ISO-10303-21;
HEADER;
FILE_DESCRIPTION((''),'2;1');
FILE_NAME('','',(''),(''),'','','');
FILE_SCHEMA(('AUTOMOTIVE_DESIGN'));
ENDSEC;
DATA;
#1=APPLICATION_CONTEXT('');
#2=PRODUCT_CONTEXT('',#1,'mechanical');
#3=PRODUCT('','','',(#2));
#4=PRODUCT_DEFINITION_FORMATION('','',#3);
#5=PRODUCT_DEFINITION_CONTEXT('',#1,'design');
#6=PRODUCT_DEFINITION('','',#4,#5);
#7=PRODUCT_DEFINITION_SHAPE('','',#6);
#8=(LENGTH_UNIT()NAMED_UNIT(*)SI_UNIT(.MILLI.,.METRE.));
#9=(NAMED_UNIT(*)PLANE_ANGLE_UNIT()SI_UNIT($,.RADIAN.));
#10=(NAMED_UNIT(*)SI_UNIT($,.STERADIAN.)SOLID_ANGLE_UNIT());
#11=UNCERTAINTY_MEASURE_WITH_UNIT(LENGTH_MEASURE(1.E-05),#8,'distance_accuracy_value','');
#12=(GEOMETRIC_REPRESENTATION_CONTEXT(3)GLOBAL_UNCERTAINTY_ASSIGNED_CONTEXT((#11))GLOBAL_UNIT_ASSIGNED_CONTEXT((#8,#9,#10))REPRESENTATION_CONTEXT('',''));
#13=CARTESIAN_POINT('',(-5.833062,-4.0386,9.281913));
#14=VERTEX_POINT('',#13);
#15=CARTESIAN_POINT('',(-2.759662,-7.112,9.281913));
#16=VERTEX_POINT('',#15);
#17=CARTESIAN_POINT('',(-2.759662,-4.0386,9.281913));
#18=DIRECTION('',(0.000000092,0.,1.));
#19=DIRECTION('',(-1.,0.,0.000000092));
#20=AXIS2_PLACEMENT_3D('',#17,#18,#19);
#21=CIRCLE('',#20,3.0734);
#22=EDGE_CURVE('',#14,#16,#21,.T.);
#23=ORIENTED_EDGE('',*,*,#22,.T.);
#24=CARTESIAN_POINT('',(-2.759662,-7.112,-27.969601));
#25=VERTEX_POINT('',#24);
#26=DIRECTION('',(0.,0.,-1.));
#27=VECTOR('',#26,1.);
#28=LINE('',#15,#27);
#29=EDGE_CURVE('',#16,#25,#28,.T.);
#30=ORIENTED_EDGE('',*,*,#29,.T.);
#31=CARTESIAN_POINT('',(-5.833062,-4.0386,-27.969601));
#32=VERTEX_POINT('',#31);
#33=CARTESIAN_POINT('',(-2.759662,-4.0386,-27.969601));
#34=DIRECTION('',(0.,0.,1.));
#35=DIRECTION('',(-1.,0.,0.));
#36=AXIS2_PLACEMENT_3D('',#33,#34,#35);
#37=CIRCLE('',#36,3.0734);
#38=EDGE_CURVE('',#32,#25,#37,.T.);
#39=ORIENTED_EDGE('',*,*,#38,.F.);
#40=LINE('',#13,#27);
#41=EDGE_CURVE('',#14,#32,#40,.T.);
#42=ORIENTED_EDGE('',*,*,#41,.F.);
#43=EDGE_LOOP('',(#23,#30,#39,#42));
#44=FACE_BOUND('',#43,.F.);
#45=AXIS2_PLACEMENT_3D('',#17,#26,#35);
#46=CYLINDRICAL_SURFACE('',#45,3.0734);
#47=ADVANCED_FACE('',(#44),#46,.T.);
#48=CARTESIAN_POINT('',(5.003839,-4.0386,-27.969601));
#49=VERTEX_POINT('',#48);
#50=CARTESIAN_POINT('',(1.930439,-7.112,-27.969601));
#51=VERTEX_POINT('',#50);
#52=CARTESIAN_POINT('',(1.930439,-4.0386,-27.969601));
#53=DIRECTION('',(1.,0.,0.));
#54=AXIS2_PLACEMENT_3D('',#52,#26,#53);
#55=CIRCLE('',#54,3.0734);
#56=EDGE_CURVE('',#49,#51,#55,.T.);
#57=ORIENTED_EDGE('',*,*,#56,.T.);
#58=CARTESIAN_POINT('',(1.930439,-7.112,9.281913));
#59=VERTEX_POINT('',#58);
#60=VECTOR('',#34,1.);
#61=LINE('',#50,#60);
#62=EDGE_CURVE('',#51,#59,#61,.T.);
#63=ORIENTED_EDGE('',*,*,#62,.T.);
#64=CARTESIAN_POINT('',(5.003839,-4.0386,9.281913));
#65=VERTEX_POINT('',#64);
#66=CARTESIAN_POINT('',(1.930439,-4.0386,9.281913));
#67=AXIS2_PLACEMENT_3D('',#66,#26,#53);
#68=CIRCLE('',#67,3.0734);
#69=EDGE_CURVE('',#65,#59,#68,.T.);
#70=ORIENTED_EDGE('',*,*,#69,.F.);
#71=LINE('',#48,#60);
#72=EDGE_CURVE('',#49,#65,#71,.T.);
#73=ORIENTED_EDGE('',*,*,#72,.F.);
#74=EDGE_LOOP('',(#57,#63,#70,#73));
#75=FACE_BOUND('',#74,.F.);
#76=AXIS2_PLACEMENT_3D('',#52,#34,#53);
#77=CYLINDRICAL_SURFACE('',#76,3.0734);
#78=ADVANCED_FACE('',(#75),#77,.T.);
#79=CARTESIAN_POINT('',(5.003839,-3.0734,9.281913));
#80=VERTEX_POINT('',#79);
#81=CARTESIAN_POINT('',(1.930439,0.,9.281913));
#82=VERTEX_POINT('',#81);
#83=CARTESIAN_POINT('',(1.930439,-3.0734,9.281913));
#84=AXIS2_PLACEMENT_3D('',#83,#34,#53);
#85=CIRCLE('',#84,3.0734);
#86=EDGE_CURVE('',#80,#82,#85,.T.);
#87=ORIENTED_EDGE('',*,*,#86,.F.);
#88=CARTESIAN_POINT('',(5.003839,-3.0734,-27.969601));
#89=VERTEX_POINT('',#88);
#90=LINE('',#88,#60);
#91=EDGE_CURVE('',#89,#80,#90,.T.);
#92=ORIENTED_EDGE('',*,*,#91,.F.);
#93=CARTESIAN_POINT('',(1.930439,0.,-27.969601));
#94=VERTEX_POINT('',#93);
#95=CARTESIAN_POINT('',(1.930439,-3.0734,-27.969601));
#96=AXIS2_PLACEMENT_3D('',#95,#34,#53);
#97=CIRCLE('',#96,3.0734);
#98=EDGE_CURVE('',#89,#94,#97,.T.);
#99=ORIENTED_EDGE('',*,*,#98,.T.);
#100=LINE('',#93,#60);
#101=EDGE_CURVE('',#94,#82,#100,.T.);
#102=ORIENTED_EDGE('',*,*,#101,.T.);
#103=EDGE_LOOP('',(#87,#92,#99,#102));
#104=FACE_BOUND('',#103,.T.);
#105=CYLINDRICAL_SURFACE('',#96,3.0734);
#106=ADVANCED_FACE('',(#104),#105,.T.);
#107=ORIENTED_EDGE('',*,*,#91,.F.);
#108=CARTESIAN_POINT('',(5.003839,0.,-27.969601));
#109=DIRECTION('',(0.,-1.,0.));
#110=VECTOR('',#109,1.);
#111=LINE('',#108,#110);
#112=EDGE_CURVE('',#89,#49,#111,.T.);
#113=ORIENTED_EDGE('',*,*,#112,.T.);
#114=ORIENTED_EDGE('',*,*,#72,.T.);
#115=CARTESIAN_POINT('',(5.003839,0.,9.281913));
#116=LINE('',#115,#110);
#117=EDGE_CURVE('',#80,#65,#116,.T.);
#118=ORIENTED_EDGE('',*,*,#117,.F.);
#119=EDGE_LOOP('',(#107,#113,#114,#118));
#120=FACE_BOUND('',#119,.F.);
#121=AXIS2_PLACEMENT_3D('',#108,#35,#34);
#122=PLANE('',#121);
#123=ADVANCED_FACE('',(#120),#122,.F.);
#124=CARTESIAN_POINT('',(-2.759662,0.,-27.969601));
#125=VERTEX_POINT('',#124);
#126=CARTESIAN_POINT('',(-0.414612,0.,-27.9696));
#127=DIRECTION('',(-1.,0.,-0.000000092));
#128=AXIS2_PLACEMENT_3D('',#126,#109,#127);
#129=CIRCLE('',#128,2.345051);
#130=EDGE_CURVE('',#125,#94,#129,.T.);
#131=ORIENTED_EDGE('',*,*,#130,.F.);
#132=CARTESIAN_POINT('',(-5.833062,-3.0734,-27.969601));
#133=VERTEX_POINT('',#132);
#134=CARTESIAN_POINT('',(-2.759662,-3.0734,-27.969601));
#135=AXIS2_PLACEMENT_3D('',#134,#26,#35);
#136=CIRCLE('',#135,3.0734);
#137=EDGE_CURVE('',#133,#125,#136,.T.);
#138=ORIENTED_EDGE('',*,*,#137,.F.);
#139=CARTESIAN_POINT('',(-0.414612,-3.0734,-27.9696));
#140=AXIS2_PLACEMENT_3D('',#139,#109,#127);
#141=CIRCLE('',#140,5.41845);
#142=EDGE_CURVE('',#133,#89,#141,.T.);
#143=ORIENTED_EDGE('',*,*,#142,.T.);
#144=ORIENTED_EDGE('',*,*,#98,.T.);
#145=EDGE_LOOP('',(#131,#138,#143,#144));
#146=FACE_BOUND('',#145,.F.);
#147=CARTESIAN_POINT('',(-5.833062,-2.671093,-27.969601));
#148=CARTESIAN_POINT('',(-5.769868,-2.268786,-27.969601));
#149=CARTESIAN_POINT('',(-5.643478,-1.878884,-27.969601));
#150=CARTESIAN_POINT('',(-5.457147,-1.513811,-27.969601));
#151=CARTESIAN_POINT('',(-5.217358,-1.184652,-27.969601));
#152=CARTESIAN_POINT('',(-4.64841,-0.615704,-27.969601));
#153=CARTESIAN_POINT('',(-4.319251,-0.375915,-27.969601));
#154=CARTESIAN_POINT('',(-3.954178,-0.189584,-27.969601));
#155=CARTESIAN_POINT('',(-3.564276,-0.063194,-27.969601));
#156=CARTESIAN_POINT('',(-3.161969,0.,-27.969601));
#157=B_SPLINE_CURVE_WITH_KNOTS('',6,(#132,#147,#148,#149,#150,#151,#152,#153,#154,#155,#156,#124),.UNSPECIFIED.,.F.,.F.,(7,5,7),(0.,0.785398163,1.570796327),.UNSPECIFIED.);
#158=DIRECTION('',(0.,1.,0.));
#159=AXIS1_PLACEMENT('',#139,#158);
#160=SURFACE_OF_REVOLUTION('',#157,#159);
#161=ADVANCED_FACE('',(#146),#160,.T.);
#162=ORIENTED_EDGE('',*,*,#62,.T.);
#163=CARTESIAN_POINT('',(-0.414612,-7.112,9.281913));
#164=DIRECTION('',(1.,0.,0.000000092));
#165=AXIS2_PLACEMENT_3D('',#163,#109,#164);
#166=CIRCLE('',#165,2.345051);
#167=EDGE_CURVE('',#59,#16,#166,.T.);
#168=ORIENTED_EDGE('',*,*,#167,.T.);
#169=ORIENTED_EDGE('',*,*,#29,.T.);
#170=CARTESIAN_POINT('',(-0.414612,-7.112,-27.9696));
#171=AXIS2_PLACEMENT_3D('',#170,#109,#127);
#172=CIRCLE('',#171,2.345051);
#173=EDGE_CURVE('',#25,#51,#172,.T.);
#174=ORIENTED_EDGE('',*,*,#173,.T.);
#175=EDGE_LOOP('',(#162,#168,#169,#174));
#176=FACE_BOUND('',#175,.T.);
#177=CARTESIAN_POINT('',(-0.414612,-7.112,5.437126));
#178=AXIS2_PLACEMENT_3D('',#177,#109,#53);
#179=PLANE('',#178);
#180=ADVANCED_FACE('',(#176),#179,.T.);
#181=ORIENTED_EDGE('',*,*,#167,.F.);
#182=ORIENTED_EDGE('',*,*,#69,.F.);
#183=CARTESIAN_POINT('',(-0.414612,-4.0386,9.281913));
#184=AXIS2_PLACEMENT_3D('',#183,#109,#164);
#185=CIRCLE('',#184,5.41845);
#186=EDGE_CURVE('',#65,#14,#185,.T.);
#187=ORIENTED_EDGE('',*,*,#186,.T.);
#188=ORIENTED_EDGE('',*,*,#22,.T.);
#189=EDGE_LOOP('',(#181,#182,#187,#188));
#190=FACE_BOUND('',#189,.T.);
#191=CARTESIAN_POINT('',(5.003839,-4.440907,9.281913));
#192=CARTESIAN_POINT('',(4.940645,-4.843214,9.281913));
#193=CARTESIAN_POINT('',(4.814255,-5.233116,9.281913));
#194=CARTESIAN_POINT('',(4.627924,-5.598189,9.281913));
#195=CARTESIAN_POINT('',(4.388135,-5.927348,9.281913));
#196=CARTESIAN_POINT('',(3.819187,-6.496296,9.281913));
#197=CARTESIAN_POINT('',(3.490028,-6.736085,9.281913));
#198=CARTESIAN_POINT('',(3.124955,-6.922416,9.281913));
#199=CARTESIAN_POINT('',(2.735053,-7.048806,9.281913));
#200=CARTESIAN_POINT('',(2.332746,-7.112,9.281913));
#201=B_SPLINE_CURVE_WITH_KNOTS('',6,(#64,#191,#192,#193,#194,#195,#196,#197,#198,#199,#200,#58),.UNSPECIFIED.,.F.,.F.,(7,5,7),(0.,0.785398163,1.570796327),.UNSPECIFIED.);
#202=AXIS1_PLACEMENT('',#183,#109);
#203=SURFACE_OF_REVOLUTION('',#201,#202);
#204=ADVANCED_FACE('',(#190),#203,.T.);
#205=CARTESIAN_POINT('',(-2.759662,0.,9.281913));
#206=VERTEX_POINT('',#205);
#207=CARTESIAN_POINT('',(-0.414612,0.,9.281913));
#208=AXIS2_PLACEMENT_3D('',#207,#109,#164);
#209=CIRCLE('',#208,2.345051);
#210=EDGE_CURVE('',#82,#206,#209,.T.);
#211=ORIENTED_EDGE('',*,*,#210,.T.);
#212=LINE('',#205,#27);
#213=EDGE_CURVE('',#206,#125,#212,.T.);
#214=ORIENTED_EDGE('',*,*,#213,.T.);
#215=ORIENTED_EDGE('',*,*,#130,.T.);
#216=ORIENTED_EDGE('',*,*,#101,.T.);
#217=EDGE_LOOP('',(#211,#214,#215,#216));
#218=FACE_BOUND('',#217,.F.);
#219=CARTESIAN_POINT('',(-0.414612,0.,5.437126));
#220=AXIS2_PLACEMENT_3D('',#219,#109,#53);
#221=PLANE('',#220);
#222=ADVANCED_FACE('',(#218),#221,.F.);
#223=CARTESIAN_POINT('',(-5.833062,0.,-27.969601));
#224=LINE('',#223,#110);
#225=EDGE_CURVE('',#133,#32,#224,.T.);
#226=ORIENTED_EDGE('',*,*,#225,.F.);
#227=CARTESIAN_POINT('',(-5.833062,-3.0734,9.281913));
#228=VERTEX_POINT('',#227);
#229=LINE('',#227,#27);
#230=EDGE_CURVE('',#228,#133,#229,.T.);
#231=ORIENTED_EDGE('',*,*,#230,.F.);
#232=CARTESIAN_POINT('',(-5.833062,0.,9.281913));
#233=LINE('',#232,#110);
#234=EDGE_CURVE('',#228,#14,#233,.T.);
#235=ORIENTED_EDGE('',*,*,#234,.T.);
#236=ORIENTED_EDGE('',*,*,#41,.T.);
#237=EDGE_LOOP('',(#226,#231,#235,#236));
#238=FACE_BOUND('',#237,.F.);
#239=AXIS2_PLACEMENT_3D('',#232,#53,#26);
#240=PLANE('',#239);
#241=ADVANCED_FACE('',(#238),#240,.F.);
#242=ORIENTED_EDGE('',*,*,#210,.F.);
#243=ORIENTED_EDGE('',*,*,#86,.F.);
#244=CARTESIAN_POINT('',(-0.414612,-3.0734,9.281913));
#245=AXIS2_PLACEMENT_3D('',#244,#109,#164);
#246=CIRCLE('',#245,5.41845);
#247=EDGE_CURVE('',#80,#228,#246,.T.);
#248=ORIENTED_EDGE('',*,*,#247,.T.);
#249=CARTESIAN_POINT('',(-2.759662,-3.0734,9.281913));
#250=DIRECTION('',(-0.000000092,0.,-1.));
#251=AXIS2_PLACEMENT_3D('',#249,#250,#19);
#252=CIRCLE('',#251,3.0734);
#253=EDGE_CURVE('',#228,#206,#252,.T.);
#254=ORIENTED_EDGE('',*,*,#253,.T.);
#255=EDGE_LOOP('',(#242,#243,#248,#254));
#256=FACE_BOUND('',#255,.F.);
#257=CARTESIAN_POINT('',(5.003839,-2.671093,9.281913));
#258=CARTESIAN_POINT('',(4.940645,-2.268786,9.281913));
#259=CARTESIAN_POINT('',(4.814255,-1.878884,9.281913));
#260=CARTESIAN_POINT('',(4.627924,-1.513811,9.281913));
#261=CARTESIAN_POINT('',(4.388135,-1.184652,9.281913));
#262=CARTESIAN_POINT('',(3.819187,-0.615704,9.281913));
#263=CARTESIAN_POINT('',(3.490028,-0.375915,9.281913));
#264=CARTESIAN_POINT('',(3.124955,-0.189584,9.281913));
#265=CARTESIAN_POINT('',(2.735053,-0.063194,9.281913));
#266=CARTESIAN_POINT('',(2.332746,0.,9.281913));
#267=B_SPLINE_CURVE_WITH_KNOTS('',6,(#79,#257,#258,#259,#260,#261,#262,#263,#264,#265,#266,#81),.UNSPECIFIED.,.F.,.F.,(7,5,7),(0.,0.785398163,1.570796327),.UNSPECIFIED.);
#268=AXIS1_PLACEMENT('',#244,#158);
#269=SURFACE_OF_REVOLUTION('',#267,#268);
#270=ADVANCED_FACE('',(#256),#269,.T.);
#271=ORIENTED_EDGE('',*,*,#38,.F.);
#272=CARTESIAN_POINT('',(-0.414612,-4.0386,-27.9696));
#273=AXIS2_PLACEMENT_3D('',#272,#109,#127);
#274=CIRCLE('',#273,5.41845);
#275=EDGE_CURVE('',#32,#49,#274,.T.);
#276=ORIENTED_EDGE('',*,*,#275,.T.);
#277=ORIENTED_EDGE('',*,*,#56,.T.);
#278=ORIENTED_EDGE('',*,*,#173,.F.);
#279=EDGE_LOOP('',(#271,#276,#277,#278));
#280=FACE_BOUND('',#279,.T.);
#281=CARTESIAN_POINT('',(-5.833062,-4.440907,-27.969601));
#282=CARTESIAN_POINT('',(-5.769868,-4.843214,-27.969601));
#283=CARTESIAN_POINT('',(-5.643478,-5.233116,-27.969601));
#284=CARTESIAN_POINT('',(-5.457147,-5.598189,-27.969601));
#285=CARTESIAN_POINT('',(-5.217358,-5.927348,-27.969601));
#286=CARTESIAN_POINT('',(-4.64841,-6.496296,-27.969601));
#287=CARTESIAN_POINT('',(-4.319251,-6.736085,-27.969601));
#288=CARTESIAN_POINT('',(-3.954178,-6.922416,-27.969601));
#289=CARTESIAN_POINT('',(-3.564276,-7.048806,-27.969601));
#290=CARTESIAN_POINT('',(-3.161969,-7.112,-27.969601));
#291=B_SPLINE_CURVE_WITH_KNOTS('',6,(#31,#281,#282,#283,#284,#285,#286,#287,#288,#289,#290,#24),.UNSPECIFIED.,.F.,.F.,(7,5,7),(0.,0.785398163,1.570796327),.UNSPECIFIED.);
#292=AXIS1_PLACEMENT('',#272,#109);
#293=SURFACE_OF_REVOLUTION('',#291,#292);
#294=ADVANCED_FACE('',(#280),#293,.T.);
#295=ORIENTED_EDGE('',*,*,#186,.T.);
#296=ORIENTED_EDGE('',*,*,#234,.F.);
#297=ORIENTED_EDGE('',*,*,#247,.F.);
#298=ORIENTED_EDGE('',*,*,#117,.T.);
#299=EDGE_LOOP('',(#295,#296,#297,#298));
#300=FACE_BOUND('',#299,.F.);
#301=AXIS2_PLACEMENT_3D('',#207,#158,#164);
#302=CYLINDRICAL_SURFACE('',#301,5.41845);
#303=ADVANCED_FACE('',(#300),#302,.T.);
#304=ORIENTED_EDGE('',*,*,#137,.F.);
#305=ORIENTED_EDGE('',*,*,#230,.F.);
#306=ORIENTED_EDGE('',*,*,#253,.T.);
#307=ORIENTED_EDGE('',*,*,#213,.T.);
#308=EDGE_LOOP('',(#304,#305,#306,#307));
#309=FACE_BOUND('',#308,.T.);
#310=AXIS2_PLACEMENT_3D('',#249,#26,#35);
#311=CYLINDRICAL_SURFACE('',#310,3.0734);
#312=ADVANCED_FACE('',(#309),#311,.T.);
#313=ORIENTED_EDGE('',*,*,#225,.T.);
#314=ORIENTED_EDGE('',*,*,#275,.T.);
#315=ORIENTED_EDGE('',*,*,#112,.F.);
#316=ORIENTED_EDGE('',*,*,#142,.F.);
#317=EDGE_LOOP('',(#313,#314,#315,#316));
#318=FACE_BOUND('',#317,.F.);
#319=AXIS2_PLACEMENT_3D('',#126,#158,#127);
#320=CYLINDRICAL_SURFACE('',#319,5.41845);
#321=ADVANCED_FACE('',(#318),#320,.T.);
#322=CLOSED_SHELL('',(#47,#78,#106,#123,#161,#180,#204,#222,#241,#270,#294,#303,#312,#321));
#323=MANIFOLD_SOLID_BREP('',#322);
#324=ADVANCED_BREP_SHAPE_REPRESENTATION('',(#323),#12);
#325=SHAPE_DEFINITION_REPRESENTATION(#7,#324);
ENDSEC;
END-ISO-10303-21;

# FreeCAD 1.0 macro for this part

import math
import FreeCAD as App
import Part
import Sketcher
from FreeCAD import Vector
Q = App.Units.Quantity


def edges_at(feature, points):
    """Names of the edges that pass closest to the given points."""
    edges = feature.Shape.Edges
    near = lambda p: min(range(len(edges)), key=lambda i: edges[i].distToShape(Part.Vertex(*p))[0])
    return sorted({f"Edge{near(p) + 1}" for p in points})

doc = App.newDocument("Part")
body = doc.addObject("PartDesign::Body", "Body")

sketch1 = doc.addObject("Sketcher::SketchObject", "Sketch")
body.addObject(sketch1)
sketch1.AttachmentSupport = (doc.XZ_Plane, [""])
sketch1.MapMode = "FlatFace"
sketch1.addGeometry(Part.ArcOfCircle(Part.Circle(Vector(-0.414612, 9.281913, 0), Vector(0, 0, 1), 5.41845), math.radians(0.000005), math.radians(179.999995)), False)
sketch1.addGeometry(Part.LineSegment(Vector(-5.833062, 9.281913, 0), Vector(-5.833062, -27.969601, 0)), False)
sketch1.addGeometry(Part.ArcOfCircle(Part.Circle(Vector(-0.414612, -27.9696, 0), Vector(0, 0, 1), 5.41845), math.radians(-179.999995), math.radians(-0.000005)), False)
sketch1.addGeometry(Part.LineSegment(Vector(5.003839, -27.969601, 0), Vector(5.003839, 9.281913, 0)), False)
sketch1.addConstraint(Sketcher.Constraint("Tangent", 0, 2, 1, 1))
sketch1.addConstraint(Sketcher.Constraint("Tangent", 1, 2, 2, 1))
sketch1.addConstraint(Sketcher.Constraint("Tangent", 2, 2, 3, 1))
sketch1.addConstraint(Sketcher.Constraint("Tangent", 3, 2, 0, 1))
sketch1.addConstraint(Sketcher.Constraint("Vertical", 1))
sketch1.addConstraint(Sketcher.Constraint("Vertical", 3))
sketch1.addConstraint(Sketcher.Constraint("Radius", 0, Q("5.41845 mm")))
sketch1.addConstraint(Sketcher.Constraint("DistanceY", 2, 3, -1, 1, Q("27.9696 mm")))
sketch1.addConstraint(Sketcher.Constraint("DistanceY", 1, 2, 1, 1, Q("37.251514 mm")))
sketch1.addConstraint(Sketcher.Constraint("DistanceX", 0, 3, -1, 1, Q("0.414612 mm")))
pad1 = doc.addObject("PartDesign::Pad", "Pad")
body.addObject(pad1)
pad1.Profile = sketch1
pad1.Length = Q("0.28 in")
doc.recompute()

fillet = doc.addObject("PartDesign::Fillet", "Fillet")
body.addObject(fillet)
fillet.Base = (pad1, edges_at(pad1, [
    (5.004, -7.112, -9.344),
    (5.004, 0, -9.344),
    (-0.415, -7.112, 14.7),
    (-0.415, 0, 14.7),
    (-0.415, 0, -33.388),
    (-0.415, -7.112, -33.388),
    (-5.833, 0, -9.344),
    (-5.833, -7.112, -9.344),
]))
fillet.Radius = Q("0.121 in")

doc.recompute()
